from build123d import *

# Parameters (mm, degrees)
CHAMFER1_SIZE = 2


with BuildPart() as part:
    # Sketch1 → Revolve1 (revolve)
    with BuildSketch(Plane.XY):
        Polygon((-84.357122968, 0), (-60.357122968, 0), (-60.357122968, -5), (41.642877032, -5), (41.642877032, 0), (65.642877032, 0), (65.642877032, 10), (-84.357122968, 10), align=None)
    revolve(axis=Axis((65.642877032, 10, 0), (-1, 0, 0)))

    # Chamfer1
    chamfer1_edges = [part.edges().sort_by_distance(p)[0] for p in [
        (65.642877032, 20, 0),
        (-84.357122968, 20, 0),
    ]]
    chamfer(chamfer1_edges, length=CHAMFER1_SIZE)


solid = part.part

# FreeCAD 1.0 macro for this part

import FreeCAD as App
import Part
import Sketcher
Q = App.Units.Quantity


def edges_at(feature, points):
    """Names of the edges that pass closest to the given points."""
    edges = feature.Shape.Edges
    near = lambda p: min(range(len(edges)), key=lambda i: edges[i].distToShape(Part.Vertex(*p))[0])
    return sorted({f"Edge{near(p) + 1}" for p in points})

doc = App.newDocument("Part")
body = doc.addObject("PartDesign::Body", "Body")

# Sketch on XY plane
sketch1 = body.newObject("Sketcher::SketchObject", "Sketch")
sketch1.AttachmentSupport = (doc.getObject("XY_Plane"), [""])
sketch1.MapMode = "FlatFace"
sketch1.addGeometry([
    Part.LineSegment(App.Vector(-84, 0, 0), App.Vector(-60, 0, 0)),  # 0
    Part.LineSegment(App.Vector(-60, 0, 0), App.Vector(-60, -5, 0)),  # 1
    Part.LineSegment(App.Vector(-60, -5, 0), App.Vector(42, -5, 0)),  # 2
    Part.LineSegment(App.Vector(42, -5, 0), App.Vector(42, 0, 0)),  # 3
    Part.LineSegment(App.Vector(42, 0, 0), App.Vector(66, 0, 0)),  # 4
    Part.LineSegment(App.Vector(66, 0, 0), App.Vector(66, 10, 0)),  # 5
    Part.LineSegment(App.Vector(66, 10, 0), App.Vector(-84, 10, 0)),  # 6
    Part.LineSegment(App.Vector(-84, 10, 0), App.Vector(-84, 0, 0)),  # 7
], False)
sketch1.addGeometry(Part.LineSegment(App.Vector(66, 10, 0), App.Vector(-84, 10, 0)), True)  # axis
sketch1.addConstraint([
    Sketcher.Constraint("Coincident", 0, 2, 1, 1),
    Sketcher.Constraint("Coincident", 1, 2, 2, 1),
    Sketcher.Constraint("Coincident", 2, 2, 3, 1),
    Sketcher.Constraint("Coincident", 3, 2, 4, 1),
    Sketcher.Constraint("Coincident", 4, 2, 5, 1),
    Sketcher.Constraint("Coincident", 5, 2, 6, 1),
    Sketcher.Constraint("Coincident", 6, 2, 7, 1),
    Sketcher.Constraint("Coincident", 7, 2, 0, 1),
    Sketcher.Constraint("Horizontal", 0),
    Sketcher.Constraint("Vertical", 1),
    Sketcher.Constraint("Horizontal", 2),
    Sketcher.Constraint("Vertical", 3),
    Sketcher.Constraint("Horizontal", 4),
    Sketcher.Constraint("Vertical", 5),
    Sketcher.Constraint("Horizontal", 6),
    Sketcher.Constraint("Vertical", 7),
    Sketcher.Constraint("Horizontal", 8),
    Sketcher.Constraint("Coincident", 8, 1, 5, 2),
    Sketcher.Constraint("PointOnObject", 0, 2, -1),
    Sketcher.Constraint("PointOnObject", 3, 2, -1),
    Sketcher.Constraint("Vertical", 7, 2, 8, 2),
    Sketcher.Constraint("Equal", 0, 4),
    Sketcher.Constraint("DistanceX", 0, 1, 0, 2, Q("24 mm")),
    Sketcher.Constraint("DistanceX", 2, 1, 2, 2, Q("102 mm")),
    Sketcher.Constraint("DistanceY", 1, 2, 1, 1, Q("5 mm")),
    Sketcher.Constraint("DistanceY", 5, 1, 5, 2, Q("10 mm")),
    Sketcher.Constraint("DistanceX", 0, 2, -1, 1, Q("60.357123 mm")),
])
revolution = body.newObject("PartDesign::Revolution", "Revolution")
revolution.Profile = sketch1
revolution.ReferenceAxis = (sketch1, ["Axis0"])
revolution.Angle = 360
doc.recompute()

chamfer = body.newObject("PartDesign::Chamfer", "Chamfer")
chamfer.Base = (revolution, edges_at(revolution, [(65.643, 20, 0), (-84.357, 20, 0)]))
chamfer.Size = 2

doc.recompute()
